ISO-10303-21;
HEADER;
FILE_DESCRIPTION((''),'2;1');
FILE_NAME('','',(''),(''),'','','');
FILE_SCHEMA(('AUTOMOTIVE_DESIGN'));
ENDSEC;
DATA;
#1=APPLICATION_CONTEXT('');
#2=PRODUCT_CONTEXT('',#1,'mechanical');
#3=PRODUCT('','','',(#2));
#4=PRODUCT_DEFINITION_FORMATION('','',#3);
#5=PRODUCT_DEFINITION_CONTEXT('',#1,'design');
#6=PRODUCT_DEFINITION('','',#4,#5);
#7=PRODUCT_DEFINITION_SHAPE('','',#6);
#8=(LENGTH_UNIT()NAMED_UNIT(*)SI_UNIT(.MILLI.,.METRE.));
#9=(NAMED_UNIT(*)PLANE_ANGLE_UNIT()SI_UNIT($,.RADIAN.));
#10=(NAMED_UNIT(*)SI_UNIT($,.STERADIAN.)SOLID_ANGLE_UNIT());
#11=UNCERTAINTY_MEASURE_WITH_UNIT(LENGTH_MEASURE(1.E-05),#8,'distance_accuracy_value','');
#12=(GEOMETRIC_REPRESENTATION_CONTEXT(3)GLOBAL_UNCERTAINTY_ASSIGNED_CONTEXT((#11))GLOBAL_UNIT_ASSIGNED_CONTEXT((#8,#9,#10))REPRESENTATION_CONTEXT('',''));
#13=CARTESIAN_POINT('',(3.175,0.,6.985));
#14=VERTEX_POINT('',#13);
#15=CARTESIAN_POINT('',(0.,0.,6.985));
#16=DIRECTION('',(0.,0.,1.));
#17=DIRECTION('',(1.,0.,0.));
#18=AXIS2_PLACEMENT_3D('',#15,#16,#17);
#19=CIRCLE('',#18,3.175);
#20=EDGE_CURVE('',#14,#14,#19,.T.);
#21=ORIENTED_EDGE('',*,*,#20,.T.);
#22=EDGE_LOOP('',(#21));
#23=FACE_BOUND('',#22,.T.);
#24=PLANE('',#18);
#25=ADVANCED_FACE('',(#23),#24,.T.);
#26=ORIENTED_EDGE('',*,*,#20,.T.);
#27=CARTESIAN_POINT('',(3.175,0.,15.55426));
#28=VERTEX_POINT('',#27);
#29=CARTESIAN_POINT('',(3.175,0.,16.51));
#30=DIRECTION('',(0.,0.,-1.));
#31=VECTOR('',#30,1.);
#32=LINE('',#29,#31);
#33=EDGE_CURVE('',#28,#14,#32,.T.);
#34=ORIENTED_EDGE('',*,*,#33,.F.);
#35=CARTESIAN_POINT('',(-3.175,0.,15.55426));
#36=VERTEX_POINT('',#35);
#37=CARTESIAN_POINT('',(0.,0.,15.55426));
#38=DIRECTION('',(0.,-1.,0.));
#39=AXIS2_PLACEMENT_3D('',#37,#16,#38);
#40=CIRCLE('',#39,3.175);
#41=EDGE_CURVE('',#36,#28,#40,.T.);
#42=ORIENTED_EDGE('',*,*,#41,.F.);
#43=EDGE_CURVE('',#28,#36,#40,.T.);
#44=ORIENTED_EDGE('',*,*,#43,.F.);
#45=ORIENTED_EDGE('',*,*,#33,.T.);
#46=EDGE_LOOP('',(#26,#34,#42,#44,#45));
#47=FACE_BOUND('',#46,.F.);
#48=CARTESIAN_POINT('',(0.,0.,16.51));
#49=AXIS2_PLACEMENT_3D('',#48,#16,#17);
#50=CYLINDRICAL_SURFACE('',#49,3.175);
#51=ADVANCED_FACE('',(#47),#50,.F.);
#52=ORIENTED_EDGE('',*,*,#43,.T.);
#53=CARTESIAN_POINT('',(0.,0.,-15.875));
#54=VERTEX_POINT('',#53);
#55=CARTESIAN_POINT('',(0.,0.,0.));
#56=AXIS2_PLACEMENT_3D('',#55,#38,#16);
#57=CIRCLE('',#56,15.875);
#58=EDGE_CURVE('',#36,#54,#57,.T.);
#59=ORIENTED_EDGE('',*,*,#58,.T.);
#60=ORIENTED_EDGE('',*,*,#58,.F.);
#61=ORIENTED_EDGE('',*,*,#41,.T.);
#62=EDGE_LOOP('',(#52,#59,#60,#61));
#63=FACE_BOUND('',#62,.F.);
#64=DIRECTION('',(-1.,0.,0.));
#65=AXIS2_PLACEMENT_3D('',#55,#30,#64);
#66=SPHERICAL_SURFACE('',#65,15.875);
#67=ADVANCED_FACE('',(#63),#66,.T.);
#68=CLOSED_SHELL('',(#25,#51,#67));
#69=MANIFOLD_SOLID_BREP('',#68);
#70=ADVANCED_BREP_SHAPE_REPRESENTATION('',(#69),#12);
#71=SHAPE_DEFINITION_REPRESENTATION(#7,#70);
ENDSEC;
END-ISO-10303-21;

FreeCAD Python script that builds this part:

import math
import FreeCAD as App
import Part
import Sketcher

V = App.Vector
Q = App.Units.Quantity

doc = App.newDocument("Part")
body = doc.addObject("PartDesign::Body", "Body")

# Sketch on XZ plane
sketch1 = body.newObject("Sketcher::SketchObject", "Sketch")
sketch1.AttachmentSupport = (doc.getObject("XZ_Plane"), [""])
sketch1.MapMode = "FlatFace"
sketch1.addGeometry([
    Part.LineSegment(V(0, -16, 0), V(0, 16, 0)),
    Part.ArcOfCircle(Part.Circle(V(0, 0, 0), V(0, 0, 1), 16), math.radians(90), math.radians(270)),
], False)
sketch1.addConstraint([
    Sketcher.Constraint("Coincident", 0, 1, 1, 2),
    Sketcher.Constraint("Coincident", 1, 1, 0, 2),
    Sketcher.Constraint("Vertical", 0),
    Sketcher.Constraint("Coincident", 1, 3, -1, 1),
    Sketcher.Constraint("PointOnObject", 0, 1, -2),
    Sketcher.Constraint("Radius", 1, Q("0.625 in")),
])
revolution = body.newObject("PartDesign::Revolution", "Revolution")
revolution.Profile = sketch1
revolution.ReferenceAxis = (sketch1, ["V_Axis"])
revolution.Angle = 360

# Sketch on XY plane
sketch2 = body.newObject("Sketcher::SketchObject", "Sketch001")
sketch2.AttachmentSupport = (doc.getObject("XY_Plane"), [""])
sketch2.MapMode = "FlatFace"
sketch2.AttachmentOffset = App.Placement(V(0, 0, 0.65 * 25.4), App.Rotation())
sketch2.addGeometry(Part.Circle(V(0, 0, 0), V(0, 0, 1), 3.2), False)
sketch2.addConstraint([
    Sketcher.Constraint("Coincident", 0, 3, -1, 1),
    Sketcher.Constraint("Diameter", 0, Q("0.25 in")),
])
pocket1 = body.newObject("PartDesign::Pocket", "Pocket")
pocket1.Profile = sketch2
pocket1.Length = Q("0.375 in")

doc.recompute()
